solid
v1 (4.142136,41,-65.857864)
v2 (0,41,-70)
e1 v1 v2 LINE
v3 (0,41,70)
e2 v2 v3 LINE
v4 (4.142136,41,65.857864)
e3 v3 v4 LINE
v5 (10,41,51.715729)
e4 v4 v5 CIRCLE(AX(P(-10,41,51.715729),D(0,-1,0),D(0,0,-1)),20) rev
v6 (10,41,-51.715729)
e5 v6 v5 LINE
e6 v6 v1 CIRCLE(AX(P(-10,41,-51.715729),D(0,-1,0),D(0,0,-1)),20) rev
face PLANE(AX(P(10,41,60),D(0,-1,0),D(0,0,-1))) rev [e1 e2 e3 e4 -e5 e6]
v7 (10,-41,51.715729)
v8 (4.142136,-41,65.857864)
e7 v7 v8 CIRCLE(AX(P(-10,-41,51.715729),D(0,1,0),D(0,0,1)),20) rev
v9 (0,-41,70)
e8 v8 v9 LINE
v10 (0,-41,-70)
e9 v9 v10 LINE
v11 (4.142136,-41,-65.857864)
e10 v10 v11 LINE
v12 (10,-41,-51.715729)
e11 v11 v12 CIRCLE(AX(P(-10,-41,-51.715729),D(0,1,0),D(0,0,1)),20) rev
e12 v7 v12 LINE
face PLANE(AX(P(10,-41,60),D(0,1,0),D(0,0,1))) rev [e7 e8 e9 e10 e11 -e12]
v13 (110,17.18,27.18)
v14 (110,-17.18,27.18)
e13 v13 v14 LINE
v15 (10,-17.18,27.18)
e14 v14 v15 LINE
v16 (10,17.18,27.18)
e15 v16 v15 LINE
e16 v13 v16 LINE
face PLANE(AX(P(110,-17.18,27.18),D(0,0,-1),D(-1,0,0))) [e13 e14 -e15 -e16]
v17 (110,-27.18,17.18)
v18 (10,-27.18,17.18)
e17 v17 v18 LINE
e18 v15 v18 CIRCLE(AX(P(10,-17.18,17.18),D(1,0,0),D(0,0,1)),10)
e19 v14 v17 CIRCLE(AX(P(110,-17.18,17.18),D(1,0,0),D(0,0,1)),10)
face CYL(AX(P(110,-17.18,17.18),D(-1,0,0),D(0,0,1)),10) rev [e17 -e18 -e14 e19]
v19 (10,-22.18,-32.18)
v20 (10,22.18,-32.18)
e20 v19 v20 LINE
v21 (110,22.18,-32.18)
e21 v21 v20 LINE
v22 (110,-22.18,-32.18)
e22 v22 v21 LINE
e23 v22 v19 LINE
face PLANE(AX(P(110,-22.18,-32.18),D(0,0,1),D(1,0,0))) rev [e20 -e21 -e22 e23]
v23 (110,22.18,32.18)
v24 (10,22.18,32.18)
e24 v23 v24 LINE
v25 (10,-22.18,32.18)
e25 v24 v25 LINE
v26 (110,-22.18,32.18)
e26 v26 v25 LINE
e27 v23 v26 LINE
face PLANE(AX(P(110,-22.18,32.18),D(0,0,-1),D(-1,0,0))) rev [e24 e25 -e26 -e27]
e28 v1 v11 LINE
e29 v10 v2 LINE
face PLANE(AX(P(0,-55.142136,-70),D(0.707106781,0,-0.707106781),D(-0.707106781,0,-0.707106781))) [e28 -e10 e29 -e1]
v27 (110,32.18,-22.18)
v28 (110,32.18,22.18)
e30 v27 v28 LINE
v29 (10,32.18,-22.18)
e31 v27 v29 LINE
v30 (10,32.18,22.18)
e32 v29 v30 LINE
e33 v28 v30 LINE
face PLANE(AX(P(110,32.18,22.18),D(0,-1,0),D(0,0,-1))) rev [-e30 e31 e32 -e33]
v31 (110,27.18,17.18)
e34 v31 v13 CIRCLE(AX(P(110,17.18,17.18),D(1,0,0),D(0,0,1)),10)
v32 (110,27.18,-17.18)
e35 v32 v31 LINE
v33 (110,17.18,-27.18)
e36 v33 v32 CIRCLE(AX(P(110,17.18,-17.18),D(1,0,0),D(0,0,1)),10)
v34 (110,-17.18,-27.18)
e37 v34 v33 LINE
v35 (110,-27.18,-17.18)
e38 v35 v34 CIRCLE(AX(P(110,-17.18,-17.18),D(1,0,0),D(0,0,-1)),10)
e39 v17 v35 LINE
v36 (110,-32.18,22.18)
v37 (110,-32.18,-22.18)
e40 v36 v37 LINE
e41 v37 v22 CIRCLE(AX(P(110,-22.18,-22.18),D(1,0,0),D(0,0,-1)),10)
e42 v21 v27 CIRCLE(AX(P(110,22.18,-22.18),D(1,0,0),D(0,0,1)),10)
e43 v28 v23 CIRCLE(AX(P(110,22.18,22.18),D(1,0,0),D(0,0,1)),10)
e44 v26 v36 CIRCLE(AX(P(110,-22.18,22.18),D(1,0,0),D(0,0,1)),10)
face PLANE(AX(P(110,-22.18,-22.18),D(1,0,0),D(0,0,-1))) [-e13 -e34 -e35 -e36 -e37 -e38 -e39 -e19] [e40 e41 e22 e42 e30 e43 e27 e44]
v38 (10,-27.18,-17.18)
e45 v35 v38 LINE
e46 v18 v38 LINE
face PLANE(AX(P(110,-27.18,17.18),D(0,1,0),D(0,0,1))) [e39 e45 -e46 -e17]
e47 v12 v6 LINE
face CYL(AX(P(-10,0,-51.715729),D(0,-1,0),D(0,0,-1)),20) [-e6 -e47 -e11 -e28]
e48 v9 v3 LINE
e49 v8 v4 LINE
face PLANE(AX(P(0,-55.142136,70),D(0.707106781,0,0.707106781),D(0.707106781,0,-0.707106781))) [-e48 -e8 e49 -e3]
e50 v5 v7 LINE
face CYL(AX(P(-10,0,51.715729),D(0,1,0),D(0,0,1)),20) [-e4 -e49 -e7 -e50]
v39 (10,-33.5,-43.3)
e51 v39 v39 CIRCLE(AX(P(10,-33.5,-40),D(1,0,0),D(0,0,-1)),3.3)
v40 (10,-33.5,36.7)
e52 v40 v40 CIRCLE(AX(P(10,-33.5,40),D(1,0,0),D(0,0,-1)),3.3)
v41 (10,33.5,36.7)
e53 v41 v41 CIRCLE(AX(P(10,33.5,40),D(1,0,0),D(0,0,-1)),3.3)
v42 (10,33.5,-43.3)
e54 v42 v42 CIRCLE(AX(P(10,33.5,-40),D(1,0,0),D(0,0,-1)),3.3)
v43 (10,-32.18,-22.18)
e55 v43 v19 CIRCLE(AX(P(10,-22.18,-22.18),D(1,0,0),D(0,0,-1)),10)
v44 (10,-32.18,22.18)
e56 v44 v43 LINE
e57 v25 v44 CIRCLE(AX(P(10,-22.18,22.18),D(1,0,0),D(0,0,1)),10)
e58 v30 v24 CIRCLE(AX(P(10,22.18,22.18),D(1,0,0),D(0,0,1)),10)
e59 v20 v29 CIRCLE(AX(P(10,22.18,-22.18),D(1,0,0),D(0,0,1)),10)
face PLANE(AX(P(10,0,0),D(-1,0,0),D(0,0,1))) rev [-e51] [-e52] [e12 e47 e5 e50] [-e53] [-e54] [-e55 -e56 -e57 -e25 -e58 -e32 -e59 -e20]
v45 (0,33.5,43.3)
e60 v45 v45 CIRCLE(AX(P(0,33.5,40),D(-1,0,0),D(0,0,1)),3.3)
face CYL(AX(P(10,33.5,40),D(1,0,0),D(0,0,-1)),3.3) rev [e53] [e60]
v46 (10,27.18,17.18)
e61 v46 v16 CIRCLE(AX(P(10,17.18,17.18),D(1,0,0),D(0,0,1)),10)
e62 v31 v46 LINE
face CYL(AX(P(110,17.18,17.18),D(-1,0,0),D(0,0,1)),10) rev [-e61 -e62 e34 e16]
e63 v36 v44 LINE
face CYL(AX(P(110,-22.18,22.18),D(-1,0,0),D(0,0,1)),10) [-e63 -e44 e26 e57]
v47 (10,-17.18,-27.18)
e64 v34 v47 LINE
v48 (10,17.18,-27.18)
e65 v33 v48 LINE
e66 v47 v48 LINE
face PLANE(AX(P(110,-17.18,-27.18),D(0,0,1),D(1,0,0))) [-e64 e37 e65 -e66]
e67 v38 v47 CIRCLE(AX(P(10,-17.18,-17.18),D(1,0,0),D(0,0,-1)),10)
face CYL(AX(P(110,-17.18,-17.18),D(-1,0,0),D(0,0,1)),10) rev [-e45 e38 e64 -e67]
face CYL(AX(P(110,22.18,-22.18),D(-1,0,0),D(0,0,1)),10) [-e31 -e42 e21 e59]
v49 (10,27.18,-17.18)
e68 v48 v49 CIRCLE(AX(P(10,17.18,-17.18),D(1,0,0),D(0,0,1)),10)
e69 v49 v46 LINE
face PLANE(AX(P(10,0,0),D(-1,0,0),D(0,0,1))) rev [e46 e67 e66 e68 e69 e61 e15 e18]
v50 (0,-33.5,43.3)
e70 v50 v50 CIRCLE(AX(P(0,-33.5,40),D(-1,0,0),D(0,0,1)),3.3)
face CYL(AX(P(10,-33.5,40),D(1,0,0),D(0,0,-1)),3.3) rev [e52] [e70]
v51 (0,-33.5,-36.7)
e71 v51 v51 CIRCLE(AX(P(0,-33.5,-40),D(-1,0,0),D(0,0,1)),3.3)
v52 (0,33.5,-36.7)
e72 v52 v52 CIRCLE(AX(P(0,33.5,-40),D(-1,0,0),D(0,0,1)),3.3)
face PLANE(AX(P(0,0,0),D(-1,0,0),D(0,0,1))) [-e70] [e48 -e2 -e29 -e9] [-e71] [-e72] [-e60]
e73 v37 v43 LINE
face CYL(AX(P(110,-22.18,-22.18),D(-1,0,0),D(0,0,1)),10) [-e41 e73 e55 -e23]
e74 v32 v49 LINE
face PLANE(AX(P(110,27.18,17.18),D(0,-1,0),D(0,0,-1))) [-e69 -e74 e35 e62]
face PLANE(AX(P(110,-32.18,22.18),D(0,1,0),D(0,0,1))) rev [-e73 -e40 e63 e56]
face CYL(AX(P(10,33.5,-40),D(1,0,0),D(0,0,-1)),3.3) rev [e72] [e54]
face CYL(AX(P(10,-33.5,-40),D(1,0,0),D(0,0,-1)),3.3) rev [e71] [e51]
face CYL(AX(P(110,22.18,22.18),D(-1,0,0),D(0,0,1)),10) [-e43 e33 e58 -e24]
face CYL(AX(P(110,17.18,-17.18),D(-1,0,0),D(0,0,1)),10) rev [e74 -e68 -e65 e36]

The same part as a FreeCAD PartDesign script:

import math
import FreeCAD as App
import Part
import Sketcher
from FreeCAD import Vector
Q = App.Units.Quantity


def edges_at(feature, points):
    """Names of the edges that pass closest to the given points."""
    edges = feature.Shape.Edges
    near = lambda p: min(range(len(edges)), key=lambda i: edges[i].distToShape(Part.Vertex(*p))[0])
    return sorted({f"Edge{near(p) + 1}" for p in points})

doc = App.newDocument("Part")
body = doc.addObject("PartDesign::Body", "Body")

sketch1 = doc.addObject("Sketcher::SketchObject", "Sketch")
body.addObject(sketch1)
sketch1.AttachmentSupport = (doc.YZ_Plane, [""])
sketch1.MapMode = "FlatFace"
sketch1.addGeometry([
    Part.LineSegment(Vector(41, 60, 0), Vector(-41, 60, 0)),
    Part.LineSegment(Vector(-41, 60, 0), Vector(-41, -60, 0)),
    Part.LineSegment(Vector(-41, -60, 0), Vector(41, -60, 0)),
    Part.LineSegment(Vector(41, -60, 0), Vector(41, 60, 0)),
], False)
sketch1.addConstraint([
    Sketcher.Constraint("Coincident", 0, 2, 1, 1),
    Sketcher.Constraint("Coincident", 1, 2, 2, 1),
    Sketcher.Constraint("Coincident", 2, 2, 3, 1),
    Sketcher.Constraint("Coincident", 3, 2, 0, 1),
    Sketcher.Constraint("Horizontal", 0),
    Sketcher.Constraint("Vertical", 1),
    Sketcher.Constraint("Horizontal", 2),
    Sketcher.Constraint("Vertical", 3),
    Sketcher.Constraint("Symmetric", 0, 2, 2, 2, -1, 1),
    Sketcher.Constraint("DistanceX", 0, 2, 0, 1, Q("82 mm")),
    Sketcher.Constraint("DistanceY", 1, 2, 1, 1, Q("120 mm")),
])
pad1 = doc.addObject("PartDesign::Pad", "Pad")
body.addObject(pad1)
pad1.Profile = sketch1
pad1.Length = 10

sketch2 = doc.addObject("Sketcher::SketchObject", "Sketch001")
body.addObject(sketch2)
sketch2.AttachmentSupport = (doc.XZ_Plane, [""])
sketch2.MapMode = "FlatFace"
sketch2.AttachmentOffset = App.Placement(Vector(0, 0, -41), App.Rotation())
sketch2.addGeometry([
    Part.LineSegment(Vector(0, -70, 0), Vector(0, -60, 0)),
    Part.LineSegment(Vector(0, -60, 0), Vector(10, -60, 0)),
    Part.LineSegment(Vector(10, -60, 0), Vector(0, -70, 0)),
    Part.LineSegment(Vector(0, 60, 0), Vector(0, 70, 0)),
    Part.LineSegment(Vector(0, 70, 0), Vector(10, 60, 0)),
    Part.LineSegment(Vector(10, 60, 0), Vector(0, 60, 0)),
], False)
sketch2.addConstraint([
    Sketcher.Constraint("Coincident", 0, 2, 1, 1),
    Sketcher.Constraint("Coincident", 1, 2, 2, 1),
    Sketcher.Constraint("Coincident", 2, 2, 0, 1),
    Sketcher.Constraint("Coincident", 3, 2, 4, 1),
    Sketcher.Constraint("Coincident", 4, 2, 5, 1),
    Sketcher.Constraint("Coincident", 5, 2, 3, 1),
    Sketcher.Constraint("Vertical", 0),
    Sketcher.Constraint("Horizontal", 1),
    Sketcher.Constraint("Vertical", 3),
    Sketcher.Constraint("Horizontal", 5),
    Sketcher.Constraint("Symmetric", 2, 2, 3, 2, -1, 1),
    Sketcher.Constraint("Symmetric", 1, 2, 4, 2, -1),
    Sketcher.Constraint("PointOnObject", 0, 2, -2),
    Sketcher.Constraint("Perpendicular", 2, 4),
    Sketcher.Constraint("DistanceX", 1, 1, 1, 2, Q("10 mm")),
    Sketcher.Constraint("DistanceY", 0, 2, -1, 1, Q("60 mm")),
])
pad2 = doc.addObject("PartDesign::Pad", "Pad001")
body.addObject(pad2)
pad2.Profile = sketch2
pad2.Length = 82
doc.recompute()

fillet = doc.addObject("PartDesign::Fillet", "Fillet")
body.addObject(fillet)
fillet.Base = (pad2, edges_at(pad2, [(10, 0, 60), (10, 0, -60)]))
fillet.Radius = 20

sketch3 = doc.addObject("Sketcher::SketchObject", "Sketch002")
body.addObject(sketch3)
sketch3.AttachmentSupport = (doc.YZ_Plane, [""])
sketch3.MapMode = "FlatFace"
sketch3.AttachmentOffset = App.Placement(Vector(0, 0, 10), App.Rotation())
sketch3.addGeometry([
    Part.LineSegment(Vector(-32.18, 22.18, 0), Vector(-32.18, -22.18, 0)),
    Part.ArcOfCircle(Part.Circle(Vector(-22.18, -22.18, 0), Vector(0, 0, 1), 10), math.radians(180), math.radians(270)),
    Part.LineSegment(Vector(-22.18, -32.18, 0), Vector(22.18, -32.18, 0)),
    Part.ArcOfCircle(Part.Circle(Vector(22.18, -22.18, 0), Vector(0, 0, 1), 10), math.radians(-90), math.radians(0)),
    Part.LineSegment(Vector(32.18, -22.18, 0), Vector(32.18, 22.18, 0)),
    Part.ArcOfCircle(Part.Circle(Vector(22.18, 22.18, 0), Vector(0, 0, 1), 10), math.radians(0), math.radians(90)),
    Part.LineSegment(Vector(22.18, 32.18, 0), Vector(-22.18, 32.18, 0)),
    Part.ArcOfCircle(Part.Circle(Vector(-22.18, 22.18, 0), Vector(0, 0, 1), 10), math.radians(90), math.radians(180)),
    Part.LineSegment(Vector(-27.18, -17.18, 0), Vector(-27.18, 17.18, 0)),
    Part.ArcOfCircle(Part.Circle(Vector(-17.18, 17.18, 0), Vector(0, 0, 1), 10), math.radians(90), math.radians(180)),
    Part.LineSegment(Vector(-17.18, 27.18, 0), Vector(17.18, 27.18, 0)),
    Part.ArcOfCircle(Part.Circle(Vector(17.18, 17.18, 0), Vector(0, 0, 1), 10), math.radians(0), math.radians(90)),
    Part.LineSegment(Vector(27.18, 17.18, 0), Vector(27.18, -17.18, 0)),
    Part.ArcOfCircle(Part.Circle(Vector(17.18, -17.18, 0), Vector(0, 0, 1), 10), math.radians(-90), math.radians(0)),
    Part.LineSegment(Vector(17.18, -27.18, 0), Vector(-17.18, -27.18, 0)),
    Part.ArcOfCircle(Part.Circle(Vector(-17.18, -17.18, 0), Vector(0, 0, 1), 10), math.radians(180), math.radians(270)),
], False)
sketch3.addConstraint([
    Sketcher.Constraint("Tangent", 0, 2, 1, 1),
    Sketcher.Constraint("Tangent", 1, 2, 2, 1),
    Sketcher.Constraint("Tangent", 2, 2, 3, 1),
    Sketcher.Constraint("Tangent", 3, 2, 4, 1),
    Sketcher.Constraint("Tangent", 4, 2, 5, 1),
    Sketcher.Constraint("Tangent", 5, 2, 6, 1),
    Sketcher.Constraint("Tangent", 6, 2, 7, 1),
    Sketcher.Constraint("Tangent", 7, 2, 0, 1),
    Sketcher.Constraint("Tangent", 8, 2, 9, 2),
    Sketcher.Constraint("Tangent", 9, 1, 10, 1),
    Sketcher.Constraint("Tangent", 10, 2, 11, 2),
    Sketcher.Constraint("Tangent", 11, 1, 12, 1),
    Sketcher.Constraint("Tangent", 12, 2, 13, 2),
    Sketcher.Constraint("Tangent", 13, 1, 14, 1),
    Sketcher.Constraint("Tangent", 14, 2, 15, 2),
    Sketcher.Constraint("Tangent", 15, 1, 8, 1),
    Sketcher.Constraint("Vertical", 0),
    Sketcher.Constraint("Horizontal", 2),
    Sketcher.Constraint("Vertical", 4),
    Sketcher.Constraint("Horizontal", 6),
    Sketcher.Constraint("Vertical", 8),
    Sketcher.Constraint("Horizontal", 10),
    Sketcher.Constraint("Vertical", 12),
    Sketcher.Constraint("Horizontal", 14),
    Sketcher.Constraint("Equal", 1, 3),
    Sketcher.Constraint("Equal", 3, 5),
    Sketcher.Constraint("Equal", 5, 7),
    Sketcher.Constraint("Equal", 7, 9),
    Sketcher.Constraint("Equal", 9, 11),
    Sketcher.Constraint("Equal", 11, 13),
    Sketcher.Constraint("Equal", 13, 15),
    Sketcher.Constraint("Symmetric", 1, 3, 5, 3, -1, 1),
    Sketcher.Constraint("Symmetric", 9, 3, 13, 3, -1, 1),
    Sketcher.Constraint("Equal", 6, 0),
    Sketcher.Constraint("Equal", 14, 8),
    Sketcher.Constraint("Radius", 1, Q("10 mm")),
    Sketcher.Constraint("DistanceX", 7, 3, 9, 3, Q("5 mm")),
    Sketcher.Constraint("DistanceX", 2, 1, 2, 2, Q("44.36 mm")),
])
pad3 = doc.addObject("PartDesign::Pad", "Pad002")
body.addObject(pad3)
pad3.Profile = sketch3
pad3.Length = 100

sketch4 = doc.addObject("Sketcher::SketchObject", "Sketch003")
body.addObject(sketch4)
sketch4.AttachmentSupport = (doc.YZ_Plane, [""])
sketch4.MapMode = "FlatFace"
sketch4.AttachmentOffset = App.Placement(Vector(0, 0, 10), App.Rotation())
sketch4.addGeometry([
    Part.Circle(Vector(33.5, 40, 0), Vector(0, 0, 1), 3.3),
    Part.Circle(Vector(33.5, -40, 0), Vector(0, 0, 1), 3.3),
    Part.Circle(Vector(-33.5, -40, 0), Vector(0, 0, 1), 3.3),
    Part.Circle(Vector(-33.5, 40, 0), Vector(0, 0, 1), 3.3),
], False)
sketch4.addConstraint([
    Sketcher.Constraint("Equal", 0, 1),
    Sketcher.Constraint("Equal", 1, 2),
    Sketcher.Constraint("Equal", 2, 3),
    Sketcher.Constraint("Symmetric", 0, 3, 2, 3, -1, 1),
    Sketcher.Constraint("Symmetric", 1, 3, 3, 3, -1, 1),
    Sketcher.Constraint("Symmetric", 1, 3, 2, 3, -2),
    Sketcher.Constraint("Diameter", 0, Q("6.6 mm")),
    Sketcher.Constraint("DistanceY", -1, 1, 0, 3, Q("40 mm")),
    Sketcher.Constraint("DistanceX", 2, 3, 1, 3, Q("67 mm")),
])
doc.recompute()
hole = doc.addObject("PartDesign::Hole", "Hole")
body.addObject(hole)
hole.Profile = sketch4
hole.ThreadType = "None"
hole.Diameter = 6.6
hole.DepthType = "Dimension"
hole.Depth = 10
hole.DrillPoint = "Flat"

doc.recompute()
